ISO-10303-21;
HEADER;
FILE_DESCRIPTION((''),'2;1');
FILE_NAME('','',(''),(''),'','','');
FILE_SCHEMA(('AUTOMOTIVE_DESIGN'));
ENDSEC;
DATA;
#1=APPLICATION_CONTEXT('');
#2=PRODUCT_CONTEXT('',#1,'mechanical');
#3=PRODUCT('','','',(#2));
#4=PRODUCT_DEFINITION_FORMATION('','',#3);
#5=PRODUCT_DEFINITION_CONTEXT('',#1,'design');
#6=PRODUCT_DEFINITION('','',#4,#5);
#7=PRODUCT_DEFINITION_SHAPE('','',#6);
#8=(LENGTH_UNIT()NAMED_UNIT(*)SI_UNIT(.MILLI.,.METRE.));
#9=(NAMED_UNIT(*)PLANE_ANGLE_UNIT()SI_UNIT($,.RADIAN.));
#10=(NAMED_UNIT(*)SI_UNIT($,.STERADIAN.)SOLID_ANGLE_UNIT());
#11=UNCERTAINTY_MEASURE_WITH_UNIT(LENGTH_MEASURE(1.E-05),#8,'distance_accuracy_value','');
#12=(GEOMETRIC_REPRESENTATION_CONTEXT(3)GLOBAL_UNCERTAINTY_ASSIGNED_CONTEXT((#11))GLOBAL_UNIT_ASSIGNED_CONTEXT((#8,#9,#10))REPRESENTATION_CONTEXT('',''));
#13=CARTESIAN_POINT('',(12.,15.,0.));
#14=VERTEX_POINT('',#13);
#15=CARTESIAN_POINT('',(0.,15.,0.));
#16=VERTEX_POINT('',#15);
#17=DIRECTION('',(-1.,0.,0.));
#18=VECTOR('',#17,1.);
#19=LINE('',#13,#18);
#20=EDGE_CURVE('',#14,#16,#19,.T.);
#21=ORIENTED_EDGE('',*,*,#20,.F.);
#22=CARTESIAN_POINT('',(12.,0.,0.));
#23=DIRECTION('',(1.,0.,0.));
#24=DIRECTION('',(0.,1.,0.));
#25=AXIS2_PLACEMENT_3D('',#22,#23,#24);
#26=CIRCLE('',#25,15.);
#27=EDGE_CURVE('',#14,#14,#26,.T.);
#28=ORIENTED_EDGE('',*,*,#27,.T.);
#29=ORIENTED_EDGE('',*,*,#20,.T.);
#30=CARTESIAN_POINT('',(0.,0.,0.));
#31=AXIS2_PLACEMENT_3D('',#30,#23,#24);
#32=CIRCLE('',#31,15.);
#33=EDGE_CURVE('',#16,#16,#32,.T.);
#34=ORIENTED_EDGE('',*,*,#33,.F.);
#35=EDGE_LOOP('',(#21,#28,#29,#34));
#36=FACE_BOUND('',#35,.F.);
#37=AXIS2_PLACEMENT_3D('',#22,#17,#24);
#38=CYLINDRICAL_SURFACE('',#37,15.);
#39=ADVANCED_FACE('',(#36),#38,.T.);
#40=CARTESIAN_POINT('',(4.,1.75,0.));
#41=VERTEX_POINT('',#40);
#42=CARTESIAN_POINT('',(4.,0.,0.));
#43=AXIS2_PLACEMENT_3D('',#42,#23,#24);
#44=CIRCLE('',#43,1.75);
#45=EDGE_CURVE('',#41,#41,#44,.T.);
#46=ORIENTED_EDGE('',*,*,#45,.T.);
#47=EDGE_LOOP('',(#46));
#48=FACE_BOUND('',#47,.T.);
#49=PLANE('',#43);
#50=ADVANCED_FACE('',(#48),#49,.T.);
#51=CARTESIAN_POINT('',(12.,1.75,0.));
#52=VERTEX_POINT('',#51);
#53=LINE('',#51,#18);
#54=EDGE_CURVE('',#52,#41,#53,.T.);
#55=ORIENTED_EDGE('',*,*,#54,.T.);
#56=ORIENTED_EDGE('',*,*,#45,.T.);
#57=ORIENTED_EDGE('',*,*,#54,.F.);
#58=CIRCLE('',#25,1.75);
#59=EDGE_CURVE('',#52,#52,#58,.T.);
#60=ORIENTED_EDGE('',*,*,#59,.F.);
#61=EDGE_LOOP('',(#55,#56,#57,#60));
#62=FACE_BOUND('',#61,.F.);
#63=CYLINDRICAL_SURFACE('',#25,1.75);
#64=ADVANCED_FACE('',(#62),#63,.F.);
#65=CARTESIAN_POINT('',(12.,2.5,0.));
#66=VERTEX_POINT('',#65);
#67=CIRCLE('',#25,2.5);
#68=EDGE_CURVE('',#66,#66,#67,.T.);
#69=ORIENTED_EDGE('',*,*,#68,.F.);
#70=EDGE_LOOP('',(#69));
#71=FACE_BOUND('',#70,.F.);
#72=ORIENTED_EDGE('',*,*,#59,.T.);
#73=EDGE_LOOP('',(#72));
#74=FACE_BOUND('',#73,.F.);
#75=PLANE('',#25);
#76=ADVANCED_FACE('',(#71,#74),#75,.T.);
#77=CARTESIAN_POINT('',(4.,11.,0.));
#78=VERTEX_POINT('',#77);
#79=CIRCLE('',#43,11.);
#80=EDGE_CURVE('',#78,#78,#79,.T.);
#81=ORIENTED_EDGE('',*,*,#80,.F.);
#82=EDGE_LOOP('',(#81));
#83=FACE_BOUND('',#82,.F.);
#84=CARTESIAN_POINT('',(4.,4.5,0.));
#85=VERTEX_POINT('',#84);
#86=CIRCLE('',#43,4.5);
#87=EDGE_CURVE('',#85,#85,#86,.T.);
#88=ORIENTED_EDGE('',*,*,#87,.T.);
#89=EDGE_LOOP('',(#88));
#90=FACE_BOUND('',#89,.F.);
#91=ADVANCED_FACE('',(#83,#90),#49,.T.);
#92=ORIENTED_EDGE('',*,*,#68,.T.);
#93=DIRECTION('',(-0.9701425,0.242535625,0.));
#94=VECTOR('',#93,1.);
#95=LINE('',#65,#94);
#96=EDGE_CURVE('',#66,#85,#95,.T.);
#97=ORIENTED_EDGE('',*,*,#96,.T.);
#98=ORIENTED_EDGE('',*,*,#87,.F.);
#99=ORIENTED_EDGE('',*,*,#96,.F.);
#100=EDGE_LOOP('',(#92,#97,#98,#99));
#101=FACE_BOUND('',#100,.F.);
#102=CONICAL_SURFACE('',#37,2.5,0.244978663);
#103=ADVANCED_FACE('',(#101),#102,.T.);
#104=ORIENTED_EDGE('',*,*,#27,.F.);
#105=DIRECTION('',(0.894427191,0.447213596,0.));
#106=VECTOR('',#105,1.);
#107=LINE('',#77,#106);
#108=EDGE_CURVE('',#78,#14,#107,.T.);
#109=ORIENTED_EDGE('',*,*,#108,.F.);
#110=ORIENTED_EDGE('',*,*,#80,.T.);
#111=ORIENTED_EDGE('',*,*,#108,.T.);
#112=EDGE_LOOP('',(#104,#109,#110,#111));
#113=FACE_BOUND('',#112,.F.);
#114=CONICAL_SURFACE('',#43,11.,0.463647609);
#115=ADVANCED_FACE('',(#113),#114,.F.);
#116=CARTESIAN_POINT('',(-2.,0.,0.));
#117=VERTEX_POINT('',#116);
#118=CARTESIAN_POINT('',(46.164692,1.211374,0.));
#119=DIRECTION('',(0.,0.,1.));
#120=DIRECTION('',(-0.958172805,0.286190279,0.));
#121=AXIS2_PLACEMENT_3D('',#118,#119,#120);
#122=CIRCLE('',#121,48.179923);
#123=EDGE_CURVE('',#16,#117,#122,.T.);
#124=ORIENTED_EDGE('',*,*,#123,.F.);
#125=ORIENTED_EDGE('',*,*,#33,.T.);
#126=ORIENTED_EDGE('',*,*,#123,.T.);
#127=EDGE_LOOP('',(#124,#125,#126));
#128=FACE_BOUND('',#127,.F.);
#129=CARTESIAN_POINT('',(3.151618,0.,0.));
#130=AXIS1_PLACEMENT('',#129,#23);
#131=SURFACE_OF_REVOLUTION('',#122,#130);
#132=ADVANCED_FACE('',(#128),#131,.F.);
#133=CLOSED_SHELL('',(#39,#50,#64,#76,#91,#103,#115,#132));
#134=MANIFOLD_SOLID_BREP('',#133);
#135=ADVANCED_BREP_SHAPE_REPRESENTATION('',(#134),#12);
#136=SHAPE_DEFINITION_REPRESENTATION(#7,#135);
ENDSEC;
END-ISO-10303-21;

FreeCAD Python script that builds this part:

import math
import FreeCAD as App
import Part
import Sketcher

doc = App.newDocument("Part")
params = doc.addObject("Spreadsheet::Sheet", "Params")
for row, (alias, value) in enumerate([
    ("sketch1_width", "12 mm"),
    ("sketch1_width2", "14 mm"),
    ("sketch1_height", "2.5 mm"),
    ("sketch1_height2", "6.5 mm"),
    ("revolution_angle", "360 deg"),
    ("sketch2_diameter", "3.5 mm"),
    ("pocket1_length", "8 mm"),
], start=1):
    params.set(f"A{row}", alias)
    params.set(f"B{row}", "=" + value)
    params.setAlias(f"B{row}", alias)

body = doc.addObject("PartDesign::Body", "Body")

sketch1 = body.newObject("Sketcher::SketchObject", "Sketch")
sketch1.AttachmentSupport = (doc.getObject("XY_Plane"), [""])
sketch1.MapMode = "FlatFace"
sketch1.addGeometry(Part.LineSegment(App.Vector(12, 15, 0), App.Vector(0, 15, 0)), False)
sketch1.addGeometry(Part.ArcOfCircle(Part.Circle(App.Vector(46.2, 1.2, 0), App.Vector(0, 0, 1), 48.2), math.radians(163.37), math.radians(181.44)), False)
sketch1.addGeometry(Part.LineSegment(App.Vector(-2, 0, 0), App.Vector(12, 0, 0)), False)
sketch1.addGeometry(Part.LineSegment(App.Vector(12, 0, 0), App.Vector(12, 2.5, 0)), False)
sketch1.addGeometry(Part.LineSegment(App.Vector(12, 2.5, 0), App.Vector(4, 4.5, 0)), False)
sketch1.addGeometry(Part.LineSegment(App.Vector(4, 4.5, 0), App.Vector(4, 11, 0)), False)
sketch1.addGeometry(Part.LineSegment(App.Vector(4, 11, 0), App.Vector(12, 15, 0)), False)
sketch1.addConstraint(Sketcher.Constraint("Coincident", 0, 2, 1, 1))
sketch1.addConstraint(Sketcher.Constraint("Coincident", 1, 2, 2, 1))
sketch1.addConstraint(Sketcher.Constraint("Coincident", 2, 2, 3, 1))
sketch1.addConstraint(Sketcher.Constraint("Coincident", 3, 2, 4, 1))
sketch1.addConstraint(Sketcher.Constraint("Coincident", 4, 2, 5, 1))
sketch1.addConstraint(Sketcher.Constraint("Coincident", 5, 2, 6, 1))
sketch1.addConstraint(Sketcher.Constraint("Coincident", 6, 2, 0, 1))
sketch1.addConstraint(Sketcher.Constraint("Horizontal", 0))
sketch1.addConstraint(Sketcher.Constraint("Horizontal", 2))
sketch1.addConstraint(Sketcher.Constraint("Vertical", 3))
sketch1.addConstraint(Sketcher.Constraint("Vertical", 5))
sketch1.addConstraint(Sketcher.Constraint("PointOnObject", 0, 2, -2))
sketch1.addConstraint(Sketcher.Constraint("PointOnObject", 1, 2, -1))
sketch1.addConstraint(Sketcher.Constraint("Vertical", 3, 2, 6, 2))
sketch1.addConstraint(Sketcher.Constraint("DistanceX", 0, 2, 0, 1, 12.0))
sketch1.addConstraint(Sketcher.Constraint("DistanceX", 2, 1, 2, 2, 14.0))
sketch1.addConstraint(Sketcher.Constraint("DistanceY", 3, 1, 3, 2, 2.5))
sketch1.addConstraint(Sketcher.Constraint("DistanceY", 5, 1, 5, 2, 6.5))
sketch1.addConstraint(Sketcher.Constraint("DistanceY", -1, 1, 0, 2, 15.0))
sketch1.addConstraint(Sketcher.Constraint("DistanceX", -1, 1, 4, 2, 4.0))
sketch1.addConstraint(Sketcher.Constraint("DistanceY", -1, 1, 5, 2, 11.0))
sketch1.addConstraint(Sketcher.Constraint("Radius", 1, 48.179923))
sketch1.setExpression("Constraints[14]", "Params.sketch1_width")
sketch1.setExpression("Constraints[15]", "Params.sketch1_width2")
sketch1.setExpression("Constraints[16]", "Params.sketch1_height")
sketch1.setExpression("Constraints[17]", "Params.sketch1_height2")
revolution = body.newObject("PartDesign::Revolution", "Revolution")
revolution.Profile = sketch1
revolution.ReferenceAxis = (sketch1, ["H_Axis"])
revolution.setExpression("Angle", "Params.revolution_angle")

sketch2 = body.newObject("Sketcher::SketchObject", "Sketch001")
sketch2.AttachmentSupport = (doc.getObject("YZ_Plane"), [""])
sketch2.MapMode = "FlatFace"
sketch2.AttachmentOffset = App.Placement(App.Vector(0, 0, 12), App.Rotation())
sketch2.addGeometry(Part.Circle(App.Vector(0, 0, 0), App.Vector(0, 0, 1), 1.8), False)
sketch2.addConstraint(Sketcher.Constraint("Coincident", 0, 3, -1, 1))
sketch2.addConstraint(Sketcher.Constraint("Diameter", 0, 3.5))
sketch2.setExpression("Constraints[1]", "Params.sketch2_diameter")
pocket1 = body.newObject("PartDesign::Pocket", "Pocket")
pocket1.Profile = sketch2
pocket1.setExpression("Length", "Params.pocket1_length")

doc.recompute()
